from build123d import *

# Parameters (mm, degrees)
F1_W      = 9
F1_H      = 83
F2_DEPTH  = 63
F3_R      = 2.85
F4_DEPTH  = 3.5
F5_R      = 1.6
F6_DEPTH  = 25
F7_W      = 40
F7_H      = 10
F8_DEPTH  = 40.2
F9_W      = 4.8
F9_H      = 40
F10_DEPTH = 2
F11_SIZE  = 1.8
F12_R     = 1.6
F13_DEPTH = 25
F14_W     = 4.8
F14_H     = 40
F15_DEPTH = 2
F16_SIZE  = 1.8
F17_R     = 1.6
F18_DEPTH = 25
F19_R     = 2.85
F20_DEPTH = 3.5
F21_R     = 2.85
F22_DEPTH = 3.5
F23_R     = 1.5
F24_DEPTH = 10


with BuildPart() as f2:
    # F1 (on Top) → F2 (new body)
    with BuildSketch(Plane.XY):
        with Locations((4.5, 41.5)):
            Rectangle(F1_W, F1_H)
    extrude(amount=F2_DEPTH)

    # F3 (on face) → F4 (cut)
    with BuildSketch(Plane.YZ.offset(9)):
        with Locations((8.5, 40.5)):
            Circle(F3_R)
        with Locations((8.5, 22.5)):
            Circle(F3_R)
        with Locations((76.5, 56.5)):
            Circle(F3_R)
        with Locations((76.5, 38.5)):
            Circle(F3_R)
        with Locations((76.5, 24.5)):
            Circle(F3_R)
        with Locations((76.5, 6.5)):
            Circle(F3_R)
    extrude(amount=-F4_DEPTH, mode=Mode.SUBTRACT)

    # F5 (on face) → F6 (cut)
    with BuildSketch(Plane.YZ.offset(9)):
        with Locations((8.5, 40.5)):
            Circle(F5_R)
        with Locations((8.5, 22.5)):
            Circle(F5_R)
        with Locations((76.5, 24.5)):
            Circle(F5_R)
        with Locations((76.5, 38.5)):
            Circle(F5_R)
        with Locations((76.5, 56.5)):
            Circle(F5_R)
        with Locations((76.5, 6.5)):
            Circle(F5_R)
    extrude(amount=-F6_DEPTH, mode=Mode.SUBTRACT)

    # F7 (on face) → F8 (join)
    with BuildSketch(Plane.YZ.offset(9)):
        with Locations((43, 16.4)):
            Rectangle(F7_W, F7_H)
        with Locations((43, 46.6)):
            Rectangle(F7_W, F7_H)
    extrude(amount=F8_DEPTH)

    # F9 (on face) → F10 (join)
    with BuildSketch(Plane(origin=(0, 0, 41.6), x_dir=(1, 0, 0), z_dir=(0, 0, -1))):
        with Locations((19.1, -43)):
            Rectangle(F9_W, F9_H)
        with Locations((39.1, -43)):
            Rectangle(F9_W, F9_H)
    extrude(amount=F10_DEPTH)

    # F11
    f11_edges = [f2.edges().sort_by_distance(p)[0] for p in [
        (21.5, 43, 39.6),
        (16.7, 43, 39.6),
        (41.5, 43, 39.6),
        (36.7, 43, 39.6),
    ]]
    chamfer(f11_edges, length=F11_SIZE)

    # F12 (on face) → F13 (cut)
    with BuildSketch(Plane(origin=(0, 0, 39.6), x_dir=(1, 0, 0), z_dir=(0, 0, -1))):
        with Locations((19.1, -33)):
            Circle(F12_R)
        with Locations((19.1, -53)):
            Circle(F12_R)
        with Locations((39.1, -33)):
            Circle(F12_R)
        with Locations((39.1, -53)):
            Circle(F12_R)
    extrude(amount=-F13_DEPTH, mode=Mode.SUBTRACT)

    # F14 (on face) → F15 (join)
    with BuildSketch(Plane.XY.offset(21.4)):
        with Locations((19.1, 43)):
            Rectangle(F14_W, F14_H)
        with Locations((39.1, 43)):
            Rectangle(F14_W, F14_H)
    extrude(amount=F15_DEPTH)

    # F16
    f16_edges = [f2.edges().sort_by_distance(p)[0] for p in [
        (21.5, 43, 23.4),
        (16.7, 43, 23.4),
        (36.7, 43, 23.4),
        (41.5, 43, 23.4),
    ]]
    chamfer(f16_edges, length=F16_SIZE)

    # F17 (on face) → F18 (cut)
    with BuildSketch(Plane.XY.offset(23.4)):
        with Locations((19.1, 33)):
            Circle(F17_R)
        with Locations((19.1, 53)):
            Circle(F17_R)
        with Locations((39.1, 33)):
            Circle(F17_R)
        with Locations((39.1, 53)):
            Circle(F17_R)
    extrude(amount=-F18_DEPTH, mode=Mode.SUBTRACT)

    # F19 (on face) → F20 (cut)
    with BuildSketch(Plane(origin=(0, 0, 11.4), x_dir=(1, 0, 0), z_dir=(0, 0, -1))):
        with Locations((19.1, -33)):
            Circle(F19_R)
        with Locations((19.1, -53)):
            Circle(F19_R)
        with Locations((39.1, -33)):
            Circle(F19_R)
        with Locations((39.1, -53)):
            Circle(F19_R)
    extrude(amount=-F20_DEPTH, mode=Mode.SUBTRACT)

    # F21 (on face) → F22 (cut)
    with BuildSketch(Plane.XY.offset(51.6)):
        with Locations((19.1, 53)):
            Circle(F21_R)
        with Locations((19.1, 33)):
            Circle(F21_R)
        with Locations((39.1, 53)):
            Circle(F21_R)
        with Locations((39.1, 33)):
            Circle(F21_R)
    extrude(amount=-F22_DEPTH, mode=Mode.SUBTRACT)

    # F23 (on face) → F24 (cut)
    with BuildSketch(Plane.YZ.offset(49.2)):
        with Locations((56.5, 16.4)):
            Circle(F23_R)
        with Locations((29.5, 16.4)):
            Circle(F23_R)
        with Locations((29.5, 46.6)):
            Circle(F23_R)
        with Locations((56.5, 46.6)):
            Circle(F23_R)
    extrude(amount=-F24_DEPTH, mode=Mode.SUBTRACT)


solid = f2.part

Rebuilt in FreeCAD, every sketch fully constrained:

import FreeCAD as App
import Part
import Sketcher
from FreeCAD import Vector


def edges_at(feature, points):
    """Names of the edges that pass closest to the given points."""
    edges = feature.Shape.Edges
    near = lambda p: min(range(len(edges)), key=lambda i: edges[i].distToShape(Part.Vertex(*p))[0])
    return sorted({f"Edge{near(p) + 1}" for p in points})


def add_polygon(sketch, points):
    """Adds a closed chain of lines whose ends are joined by coincident constraints."""
    first, n = sketch.GeometryCount, len(points)
    for a, b in zip(points, points[1:] + points[:1]):
        sketch.addGeometry(Part.LineSegment(App.Vector(*a, 0), App.Vector(*b, 0)), False)
    for i in range(n):
        sketch.addConstraint(Sketcher.Constraint("Coincident", first + i, 2, first + (i + 1) % n, 1))

doc = App.newDocument("Part")
body = doc.addObject("PartDesign::Body", "Body")

sketch1 = body.newObject("Sketcher::SketchObject", "Sketch")
sketch1.AttachmentSupport = (doc.getObject("XY_Plane"), [""])
sketch1.MapMode = "FlatFace"
add_polygon(sketch1, [(0, 83), (0, 0), (9, 0), (9, 83)])
sketch1.addConstraint([
    Sketcher.Constraint("Vertical", 0),
    Sketcher.Constraint("Horizontal", 1),
    Sketcher.Constraint("Vertical", 2),
    Sketcher.Constraint("Horizontal", 3),
    Sketcher.Constraint("Coincident", 0, 2, -1, 1),
    Sketcher.Constraint("DistanceX", 1, 1, 1, 2, 9.0),
    Sketcher.Constraint("DistanceY", 0, 2, 0, 1, 83.0),
])
pad1 = body.newObject("PartDesign::Pad", "Pad")
pad1.Profile = sketch1
pad1.Length = 63

sketch2 = body.newObject("Sketcher::SketchObject", "Sketch001")
sketch2.AttachmentSupport = (doc.getObject("YZ_Plane"), [""])
sketch2.MapMode = "FlatFace"
sketch2.AttachmentOffset = App.Placement(Vector(0, 0, 9), App.Rotation())
sketch2.addGeometry([
    Part.Circle(Vector(8.5, 40.5, 0), Vector(0, 0, 1), 2.9),
    Part.Circle(Vector(8.5, 22.5, 0), Vector(0, 0, 1), 2.9),
    Part.Circle(Vector(76.5, 56.5, 0), Vector(0, 0, 1), 2.9),
    Part.Circle(Vector(76.5, 38.5, 0), Vector(0, 0, 1), 2.9),
    Part.Circle(Vector(76.5, 24.5, 0), Vector(0, 0, 1), 2.9),
    Part.Circle(Vector(76.5, 6.5, 0), Vector(0, 0, 1), 2.9),
], False)
sketch2.addConstraint([
    Sketcher.Constraint("Equal", 0, 1),
    Sketcher.Constraint("Equal", 1, 2),
    Sketcher.Constraint("Equal", 2, 3),
    Sketcher.Constraint("Equal", 3, 4),
    Sketcher.Constraint("Equal", 4, 5),
    Sketcher.Constraint("Vertical", 0, 3, 1, 3),
    Sketcher.Constraint("Vertical", 2, 3, 3, 3),
    Sketcher.Constraint("Vertical", 3, 3, 4, 3),
    Sketcher.Constraint("Vertical", 4, 3, 5, 3),
    Sketcher.Constraint("Diameter", 0, 5.7),
    Sketcher.Constraint("DistanceY", 1, 3, 0, 3, 18.0),
    Sketcher.Constraint("DistanceX", 0, 3, 2, 3, 68.0),
    Sketcher.Constraint("DistanceY", 0, 3, 2, 3, 16.0),
    Sketcher.Constraint("DistanceY", 3, 3, 2, 3, 18.0),
    Sketcher.Constraint("DistanceY", 4, 3, 3, 3, 14.0),
    Sketcher.Constraint("DistanceY", 5, 3, 4, 3, 18.0),
    Sketcher.Constraint("DistanceX", -1, 1, 0, 3, 8.5),
    Sketcher.Constraint("DistanceY", -1, 1, 0, 3, 40.5),
])
pocket1 = body.newObject("PartDesign::Pocket", "Pocket")
pocket1.Profile = sketch2
pocket1.Length = 3.5

sketch3 = body.newObject("Sketcher::SketchObject", "Sketch002")
sketch3.AttachmentSupport = (doc.getObject("YZ_Plane"), [""])
sketch3.MapMode = "FlatFace"
sketch3.AttachmentOffset = App.Placement(Vector(0, 0, 9), App.Rotation())
sketch3.addGeometry([
    Part.Circle(Vector(8.5, 40.5, 0), Vector(0, 0, 1), 1.6),
    Part.Circle(Vector(8.5, 22.5, 0), Vector(0, 0, 1), 1.6),
    Part.Circle(Vector(76.5, 24.5, 0), Vector(0, 0, 1), 1.6),
    Part.Circle(Vector(76.5, 38.5, 0), Vector(0, 0, 1), 1.6),
    Part.Circle(Vector(76.5, 56.5, 0), Vector(0, 0, 1), 1.6),
    Part.Circle(Vector(76.5, 6.5, 0), Vector(0, 0, 1), 1.6),
], False)
sketch3.addConstraint([
    Sketcher.Constraint("Equal", 0, 1),
    Sketcher.Constraint("Equal", 1, 2),
    Sketcher.Constraint("Equal", 2, 3),
    Sketcher.Constraint("Equal", 3, 4),
    Sketcher.Constraint("Equal", 4, 5),
    Sketcher.Constraint("Vertical", 0, 3, 1, 3),
    Sketcher.Constraint("Vertical", 2, 3, 3, 3),
    Sketcher.Constraint("Vertical", 3, 3, 4, 3),
    Sketcher.Constraint("Vertical", 4, 3, 5, 3),
    Sketcher.Constraint("Diameter", 0, 3.2),
    Sketcher.Constraint("DistanceY", 1, 3, 0, 3, 18.0),
    Sketcher.Constraint("DistanceX", 1, 3, 2, 3, 68.0),
    Sketcher.Constraint("DistanceY", 1, 3, 2, 3, 2.0),
    Sketcher.Constraint("DistanceY", 2, 3, 3, 3, 14.0),
    Sketcher.Constraint("DistanceY", 3, 3, 4, 3, 18.0),
    Sketcher.Constraint("DistanceY", 5, 3, 2, 3, 18.0),
    Sketcher.Constraint("DistanceX", -1, 1, 0, 3, 8.5),
    Sketcher.Constraint("DistanceY", -1, 1, 0, 3, 40.5),
])
pocket2 = body.newObject("PartDesign::Pocket", "Pocket001")
pocket2.Profile = sketch3
pocket2.Length = 25

sketch4 = body.newObject("Sketcher::SketchObject", "Sketch003")
sketch4.AttachmentSupport = (doc.getObject("YZ_Plane"), [""])
sketch4.MapMode = "FlatFace"
sketch4.AttachmentOffset = App.Placement(Vector(0, 0, 9), App.Rotation())
add_polygon(sketch4, [(23, 21), (23, 11), (63, 11), (63, 21)])
add_polygon(sketch4, [(23, 52), (23, 42), (63, 42), (63, 52)])
sketch4.addConstraint([
    Sketcher.Constraint("Vertical", 0),
    Sketcher.Constraint("Horizontal", 1),
    Sketcher.Constraint("Vertical", 2),
    Sketcher.Constraint("Horizontal", 3),
    Sketcher.Constraint("Vertical", 4),
    Sketcher.Constraint("Horizontal", 5),
    Sketcher.Constraint("Vertical", 6),
    Sketcher.Constraint("Horizontal", 7),
    Sketcher.Constraint("Vertical", 3, 2, 4, 2),
    Sketcher.Constraint("Vertical", 2, 2, 5, 2),
    Sketcher.Constraint("Equal", 2, 4),
    Sketcher.Constraint("DistanceX", 1, 1, 1, 2, 40.0),
    Sketcher.Constraint("DistanceY", 0, 2, 0, 1, 10.0),
    Sketcher.Constraint("DistanceX", -1, 1, 0, 2, 23.0),
    Sketcher.Constraint("DistanceY", -1, 1, 0, 2, 11.4),
    Sketcher.Constraint("DistanceY", -1, 1, 4, 2, 41.6),
])
pad2 = body.newObject("PartDesign::Pad", "Pad001")
pad2.Profile = sketch4
pad2.Length = 40.2

sketch5 = body.newObject("Sketcher::SketchObject", "Sketch004")
sketch5.AttachmentSupport = (doc.getObject("XY_Plane"), [""])
sketch5.MapMode = "FlatFace"
sketch5.AttachmentOffset = App.Placement(Vector(0, 0, 41.6), App.Rotation())
add_polygon(sketch5, [(16.7, 23), (16.7, 63), (21.5, 63), (21.5, 23)])
add_polygon(sketch5, [(36.7, 23), (36.7, 63), (41.5, 63), (41.5, 23)])
sketch5.addConstraint([
    Sketcher.Constraint("Vertical", 0),
    Sketcher.Constraint("Horizontal", 1),
    Sketcher.Constraint("Vertical", 2),
    Sketcher.Constraint("Horizontal", 3),
    Sketcher.Constraint("Vertical", 4),
    Sketcher.Constraint("Horizontal", 5),
    Sketcher.Constraint("Vertical", 6),
    Sketcher.Constraint("Horizontal", 7),
    Sketcher.Constraint("Horizontal", 1, 2, 4, 2),
    Sketcher.Constraint("Horizontal", 3, 2, 6, 2),
    Sketcher.Constraint("Equal", 3, 5),
    Sketcher.Constraint("DistanceY", 0, 1, 0, 2, 40.0),
    Sketcher.Constraint("DistanceX", 1, 1, 1, 2, 4.8),
    Sketcher.Constraint("DistanceY", -1, 1, 0, 2, 63.0),
    Sketcher.Constraint("DistanceX", 0, 2, 4, 2, 20.0),
    Sketcher.Constraint("DistanceX", -1, 1, 0, 2, 16.7),
])
pad3 = body.newObject("PartDesign::Pad", "Pad002")
pad3.Profile = sketch5
pad3.Length = 2
pad3.Reversed = True
doc.recompute()

chamfer = body.newObject("PartDesign::Chamfer", "Chamfer")
chamfer.Base = (pad3, edges_at(pad3, [
    (21.5, 43, 39.6),
    (16.7, 43, 39.6),
    (41.5, 43, 39.6),
    (36.7, 43, 39.6),
]))
chamfer.Size = 1.8

sketch6 = body.newObject("Sketcher::SketchObject", "Sketch005")
sketch6.AttachmentSupport = (doc.getObject("XY_Plane"), [""])
sketch6.MapMode = "FlatFace"
sketch6.AttachmentOffset = App.Placement(Vector(0, 0, 39.6), App.Rotation())
sketch6.addGeometry([
    Part.Circle(Vector(19.1, 33, 0), Vector(0, 0, 1), 1.6),
    Part.Circle(Vector(19.1, 53, 0), Vector(0, 0, 1), 1.6),
    Part.Circle(Vector(39.1, 33, 0), Vector(0, 0, 1), 1.6),
    Part.Circle(Vector(39.1, 53, 0), Vector(0, 0, 1), 1.6),
], False)
sketch6.addConstraint([
    Sketcher.Constraint("Equal", 0, 1),
    Sketcher.Constraint("Equal", 1, 2),
    Sketcher.Constraint("Equal", 2, 3),
    Sketcher.Constraint("Horizontal", 0, 3, 2, 3),
    Sketcher.Constraint("Horizontal", 1, 3, 3, 3),
    Sketcher.Constraint("Vertical", 0, 3, 1, 3),
    Sketcher.Constraint("Vertical", 2, 3, 3, 3),
    Sketcher.Constraint("Diameter", 0, 3.2),
    Sketcher.Constraint("DistanceY", -1, 1, 0, 3, 33.0),
    Sketcher.Constraint("DistanceY", -1, 1, 1, 3, 53.0),
    Sketcher.Constraint("DistanceX", 0, 3, 2, 3, 20.0),
    Sketcher.Constraint("DistanceX", -1, 1, 0, 3, 19.1),
])
pocket3 = body.newObject("PartDesign::Pocket", "Pocket002")
pocket3.Profile = sketch6
pocket3.Length = 25
pocket3.Reversed = True

sketch7 = body.newObject("Sketcher::SketchObject", "Sketch006")
sketch7.AttachmentSupport = (doc.getObject("XY_Plane"), [""])
sketch7.MapMode = "FlatFace"
sketch7.AttachmentOffset = App.Placement(Vector(0, 0, 21.4), App.Rotation())
add_polygon(sketch7, [(16.7, 63), (16.7, 23), (21.5, 23), (21.5, 63)])
add_polygon(sketch7, [(36.7, 63), (36.7, 23), (41.5, 23), (41.5, 63)])
sketch7.addConstraint([
    Sketcher.Constraint("Vertical", 0),
    Sketcher.Constraint("Horizontal", 1),
    Sketcher.Constraint("Vertical", 2),
    Sketcher.Constraint("Horizontal", 3),
    Sketcher.Constraint("Vertical", 4),
    Sketcher.Constraint("Horizontal", 5),
    Sketcher.Constraint("Vertical", 6),
    Sketcher.Constraint("Horizontal", 7),
    Sketcher.Constraint("Horizontal", 1, 2, 4, 2),
    Sketcher.Constraint("Horizontal", 3, 2, 6, 2),
    Sketcher.Constraint("Equal", 3, 5),
    Sketcher.Constraint("DistanceY", 0, 2, 0, 1, 40.0),
    Sketcher.Constraint("DistanceX", 1, 1, 1, 2, 4.8),
    Sketcher.Constraint("DistanceY", -1, 1, 0, 2, 23.0),
    Sketcher.Constraint("DistanceX", 0, 2, 4, 2, 20.0),
    Sketcher.Constraint("DistanceX", -1, 1, 0, 2, 16.7),
])
pad4 = body.newObject("PartDesign::Pad", "Pad003")
pad4.Profile = sketch7
pad4.Length = 2
doc.recompute()

chamfer2 = body.newObject("PartDesign::Chamfer", "Chamfer001")
chamfer2.Base = (pad4, edges_at(pad4, [
    (21.5, 43, 23.4),
    (16.7, 43, 23.4),
    (36.7, 43, 23.4),
    (41.5, 43, 23.4),
]))
chamfer2.Size = 1.8

sketch8 = body.newObject("Sketcher::SketchObject", "Sketch007")
sketch8.AttachmentSupport = (doc.getObject("XY_Plane"), [""])
sketch8.MapMode = "FlatFace"
sketch8.AttachmentOffset = App.Placement(Vector(0, 0, 23.4), App.Rotation())
sketch8.addGeometry([
    Part.Circle(Vector(19.1, 33, 0), Vector(0, 0, 1), 1.6),
    Part.Circle(Vector(19.1, 53, 0), Vector(0, 0, 1), 1.6),
    Part.Circle(Vector(39.1, 33, 0), Vector(0, 0, 1), 1.6),
    Part.Circle(Vector(39.1, 53, 0), Vector(0, 0, 1), 1.6),
], False)
sketch8.addConstraint([
    Sketcher.Constraint("Equal", 0, 1),
    Sketcher.Constraint("Equal", 1, 2),
    Sketcher.Constraint("Equal", 2, 3),
    Sketcher.Constraint("Horizontal", 0, 3, 2, 3),
    Sketcher.Constraint("Horizontal", 1, 3, 3, 3),
    Sketcher.Constraint("Vertical", 0, 3, 1, 3),
    Sketcher.Constraint("Vertical", 2, 3, 3, 3),
    Sketcher.Constraint("Diameter", 0, 3.2),
    Sketcher.Constraint("DistanceY", -1, 1, 0, 3, 33.0),
    Sketcher.Constraint("DistanceY", -1, 1, 1, 3, 53.0),
    Sketcher.Constraint("DistanceX", 0, 3, 2, 3, 20.0),
    Sketcher.Constraint("DistanceX", -1, 1, 0, 3, 19.1),
])
pocket4 = body.newObject("PartDesign::Pocket", "Pocket003")
pocket4.Profile = sketch8
pocket4.Length = 25

sketch9 = body.newObject("Sketcher::SketchObject", "Sketch008")
sketch9.AttachmentSupport = (doc.getObject("XY_Plane"), [""])
sketch9.MapMode = "FlatFace"
sketch9.AttachmentOffset = App.Placement(Vector(0, 0, 11.4), App.Rotation())
sketch9.addGeometry([
    Part.Circle(Vector(19.1, 33, 0), Vector(0, 0, 1), 2.9),
    Part.Circle(Vector(19.1, 53, 0), Vector(0, 0, 1), 2.9),
    Part.Circle(Vector(39.1, 33, 0), Vector(0, 0, 1), 2.9),
    Part.Circle(Vector(39.1, 53, 0), Vector(0, 0, 1), 2.9),
], False)
sketch9.addConstraint([
    Sketcher.Constraint("Equal", 0, 1),
    Sketcher.Constraint("Equal", 1, 2),
    Sketcher.Constraint("Equal", 2, 3),
    Sketcher.Constraint("Horizontal", 0, 3, 2, 3),
    Sketcher.Constraint("Horizontal", 1, 3, 3, 3),
    Sketcher.Constraint("Vertical", 0, 3, 1, 3),
    Sketcher.Constraint("Vertical", 2, 3, 3, 3),
    Sketcher.Constraint("Diameter", 0, 5.7),
    Sketcher.Constraint("DistanceY", -1, 1, 0, 3, 33.0),
    Sketcher.Constraint("DistanceY", -1, 1, 1, 3, 53.0),
    Sketcher.Constraint("DistanceX", 0, 3, 2, 3, 20.0),
    Sketcher.Constraint("DistanceX", -1, 1, 0, 3, 19.1),
])
pocket5 = body.newObject("PartDesign::Pocket", "Pocket004")
pocket5.Profile = sketch9
pocket5.Length = 3.5
pocket5.Reversed = True

sketch10 = body.newObject("Sketcher::SketchObject", "Sketch009")
sketch10.AttachmentSupport = (doc.getObject("XY_Plane"), [""])
sketch10.MapMode = "FlatFace"
sketch10.AttachmentOffset = App.Placement(Vector(0, 0, 51.6), App.Rotation())
sketch10.addGeometry([
    Part.Circle(Vector(19.1, 53, 0), Vector(0, 0, 1), 2.9),
    Part.Circle(Vector(19.1, 33, 0), Vector(0, 0, 1), 2.9),
    Part.Circle(Vector(39.1, 53, 0), Vector(0, 0, 1), 2.9),
    Part.Circle(Vector(39.1, 33, 0), Vector(0, 0, 1), 2.9),
], False)
sketch10.addConstraint([
    Sketcher.Constraint("Equal", 0, 1),
    Sketcher.Constraint("Equal", 1, 2),
    Sketcher.Constraint("Equal", 2, 3),
    Sketcher.Constraint("Horizontal", 0, 3, 2, 3),
    Sketcher.Constraint("Horizontal", 1, 3, 3, 3),
    Sketcher.Constraint("Vertical", 0, 3, 1, 3),
    Sketcher.Constraint("Vertical", 2, 3, 3, 3),
    Sketcher.Constraint("Diameter", 0, 5.7),
    Sketcher.Constraint("DistanceY", -1, 1, 0, 3, 53.0),
    Sketcher.Constraint("DistanceY", -1, 1, 1, 3, 33.0),
    Sketcher.Constraint("DistanceX", 0, 3, 2, 3, 20.0),
    Sketcher.Constraint("DistanceX", -1, 1, 0, 3, 19.1),
])
pocket6 = body.newObject("PartDesign::Pocket", "Pocket005")
pocket6.Profile = sketch10
pocket6.Length = 3.5

sketch11 = body.newObject("Sketcher::SketchObject", "Sketch010")
sketch11.AttachmentSupport = (doc.getObject("YZ_Plane"), [""])
sketch11.MapMode = "FlatFace"
sketch11.AttachmentOffset = App.Placement(Vector(0, 0, 49.2), App.Rotation())
sketch11.addGeometry([
    Part.Circle(Vector(56.5, 16.4, 0), Vector(0, 0, 1), 1.5),
    Part.Circle(Vector(29.5, 16.4, 0), Vector(0, 0, 1), 1.5),
    Part.Circle(Vector(29.5, 46.6, 0), Vector(0, 0, 1), 1.5),
    Part.Circle(Vector(56.5, 46.6, 0), Vector(0, 0, 1), 1.5),
], False)
sketch11.addConstraint([
    Sketcher.Constraint("Equal", 0, 1),
    Sketcher.Constraint("Equal", 1, 2),
    Sketcher.Constraint("Equal", 2, 3),
    Sketcher.Constraint("Horizontal", 0, 3, 1, 3),
    Sketcher.Constraint("Horizontal", 2, 3, 3, 3),
    Sketcher.Constraint("Vertical", 1, 3, 2, 3),
    Sketcher.Constraint("Vertical", 0, 3, 3, 3),
    Sketcher.Constraint("Diameter", 0, 3.0),
    Sketcher.Constraint("DistanceX", 1, 3, 0, 3, 27.0),
    Sketcher.Constraint("DistanceX", -1, 1, 0, 3, 56.5),
    Sketcher.Constraint("DistanceY", -1, 1, 0, 3, 16.4),
    Sketcher.Constraint("DistanceY", -1, 1, 2, 3, 46.6),
])
pocket7 = body.newObject("PartDesign::Pocket", "Pocket006")
pocket7.Profile = sketch11
pocket7.Length = 10

doc.recompute()
